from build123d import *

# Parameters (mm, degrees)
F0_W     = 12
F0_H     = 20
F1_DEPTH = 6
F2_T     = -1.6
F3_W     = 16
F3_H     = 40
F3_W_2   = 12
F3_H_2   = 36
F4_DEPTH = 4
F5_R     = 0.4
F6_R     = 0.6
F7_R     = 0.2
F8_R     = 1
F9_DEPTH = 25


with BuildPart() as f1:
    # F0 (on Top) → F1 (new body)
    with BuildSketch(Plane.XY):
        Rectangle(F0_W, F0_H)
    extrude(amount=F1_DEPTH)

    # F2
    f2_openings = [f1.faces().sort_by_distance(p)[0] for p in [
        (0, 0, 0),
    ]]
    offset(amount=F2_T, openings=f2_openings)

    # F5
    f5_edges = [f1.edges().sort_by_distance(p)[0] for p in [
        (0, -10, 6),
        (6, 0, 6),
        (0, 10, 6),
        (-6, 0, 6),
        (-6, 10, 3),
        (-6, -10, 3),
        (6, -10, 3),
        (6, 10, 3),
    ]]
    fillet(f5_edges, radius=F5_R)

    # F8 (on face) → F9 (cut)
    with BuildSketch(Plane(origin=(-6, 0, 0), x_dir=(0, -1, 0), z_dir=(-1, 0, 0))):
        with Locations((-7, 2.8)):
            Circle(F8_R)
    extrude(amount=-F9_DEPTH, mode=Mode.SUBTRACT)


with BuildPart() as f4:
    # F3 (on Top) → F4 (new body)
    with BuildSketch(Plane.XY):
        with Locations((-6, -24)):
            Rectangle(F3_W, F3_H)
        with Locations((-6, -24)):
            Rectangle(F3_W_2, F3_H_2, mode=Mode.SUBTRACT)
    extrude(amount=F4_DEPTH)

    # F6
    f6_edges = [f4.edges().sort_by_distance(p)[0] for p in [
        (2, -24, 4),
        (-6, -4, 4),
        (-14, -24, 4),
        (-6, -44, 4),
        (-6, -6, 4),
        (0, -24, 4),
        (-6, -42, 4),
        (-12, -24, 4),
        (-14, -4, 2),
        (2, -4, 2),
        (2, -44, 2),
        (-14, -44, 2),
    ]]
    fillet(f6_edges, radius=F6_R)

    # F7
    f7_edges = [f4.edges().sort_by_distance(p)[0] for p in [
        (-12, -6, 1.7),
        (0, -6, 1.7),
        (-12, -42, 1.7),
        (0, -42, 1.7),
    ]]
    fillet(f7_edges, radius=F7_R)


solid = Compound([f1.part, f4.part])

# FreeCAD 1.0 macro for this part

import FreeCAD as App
import Part
import Sketcher
Q = App.Units.Quantity


def edges_at(feature, points):
    """Names of the edges that pass closest to the given points."""
    edges = feature.Shape.Edges
    near = lambda p: min(range(len(edges)), key=lambda i: edges[i].distToShape(Part.Vertex(*p))[0])
    return sorted({f"Edge{near(p) + 1}" for p in points})


def faces_at(feature, points):
    """Names of the faces that lie closest to the given points."""
    faces = feature.Shape.Faces
    near = lambda p: min(range(len(faces)), key=lambda i: faces[i].distToShape(Part.Vertex(*p))[0])
    return sorted({f"Face{near(p) + 1}" for p in points})


def add_polygon(sketch, points):
    """Adds a closed chain of lines whose ends are joined by coincident constraints."""
    first, n = sketch.GeometryCount, len(points)
    for a, b in zip(points, points[1:] + points[:1]):
        sketch.addGeometry(Part.LineSegment(App.Vector(*a, 0), App.Vector(*b, 0)), False)
    for i in range(n):
        sketch.addConstraint(Sketcher.Constraint("Coincident", first + i, 2, first + (i + 1) % n, 1))

doc = App.newDocument("Part")
body = doc.addObject("PartDesign::Body", "Body")

# Sketch on XY plane
sketch1 = doc.addObject("Sketcher::SketchObject", "Sketch")
body.addObject(sketch1)
sketch1.AttachmentSupport = (doc.XY_Plane, [""])
sketch1.MapMode = "FlatFace"
add_polygon(sketch1, [(-6, 10), (-6, -10), (6, -10), (6, 10)])  # lines 0-3
sketch1.addConstraint([
    Sketcher.Constraint("Vertical", 0),
    Sketcher.Constraint("Horizontal", 1),
    Sketcher.Constraint("Vertical", 2),
    Sketcher.Constraint("Horizontal", 3),
    Sketcher.Constraint("Symmetric", 0, 2, 2, 2, -1, 1),
    Sketcher.Constraint("DistanceX", 1, 1, 1, 2, Q("12 mm")),
    Sketcher.Constraint("DistanceY", 0, 2, 0, 1, Q("20 mm")),
])
pad1 = doc.addObject("PartDesign::Pad", "Pad")
body.addObject(pad1)
pad1.Profile = sketch1
pad1.Length = 6
doc.recompute()

thickness = doc.addObject("PartDesign::Thickness", "Thickness")
body.addObject(thickness)
thickness.Base = (pad1, faces_at(pad1, [(0, 0, 0)]))
thickness.Value = 1.6
thickness.Reversed = True
thickness.Join = "Arc"
doc.recompute()

fillet = doc.addObject("PartDesign::Fillet", "Fillet")
body.addObject(fillet)
fillet.Base = (thickness, edges_at(thickness, [
    (0, -10, 6),
    (6, 0, 6),
    (0, 10, 6),
    (-6, 0, 6),
    (-6, 10, 3),
    (-6, -10, 3),
    (6, -10, 3),
    (6, 10, 3),
]))
fillet.Radius = 0.4

# Sketch on YZ plane
sketch2 = doc.addObject("Sketcher::SketchObject", "Sketch001")
body.addObject(sketch2)
sketch2.AttachmentSupport = (doc.YZ_Plane, [""])
sketch2.MapMode = "FlatFace"
sketch2.AttachmentOffset = App.Placement(App.Vector(0, 0, -6), App.Rotation())
sketch2.addGeometry(Part.Circle(App.Vector(7, 2.8, 0), App.Vector(0, 0, 1), 1), False)
sketch2.addConstraint([
    Sketcher.Constraint("Diameter", 0, Q("2 mm")),
    Sketcher.Constraint("DistanceX", -1, 1, 0, 3, Q("7 mm")),
    Sketcher.Constraint("DistanceY", -1, 1, 0, 3, Q("2.8 mm")),
])
pocket1 = doc.addObject("PartDesign::Pocket", "Pocket")
body.addObject(pocket1)
pocket1.Profile = sketch2
pocket1.Length = 25
pocket1.Reversed = True
body2 = doc.addObject("PartDesign::Body", "Body001")

# Sketch on XY plane
sketch3 = doc.addObject("Sketcher::SketchObject", "Sketch002")
body2.addObject(sketch3)
sketch3.AttachmentSupport = (doc.getObject("XY_Plane001"), [""])
sketch3.MapMode = "FlatFace"
add_polygon(sketch3, [(-14, -4), (-14, -44), (2, -44), (2, -4)])  # lines 0-3
add_polygon(sketch3, [(0, -42), (-12, -42), (-12, -6), (0, -6)])  # lines 4-7
sketch3.addConstraint([
    Sketcher.Constraint("Vertical", 0),
    Sketcher.Constraint("Horizontal", 1),
    Sketcher.Constraint("Vertical", 2),
    Sketcher.Constraint("Horizontal", 3),
    Sketcher.Constraint("Horizontal", 4),
    Sketcher.Constraint("Vertical", 5),
    Sketcher.Constraint("Horizontal", 6),
    Sketcher.Constraint("Vertical", 7),
    Sketcher.Constraint("PointOnObject", 6, 2, -2),
    Sketcher.Constraint("DistanceX", 1, 1, 1, 2, Q("16 mm")),
    Sketcher.Constraint("DistanceX", 4, 2, 4, 1, Q("12 mm")),
    Sketcher.Constraint("DistanceY", 0, 2, 0, 1, Q("40 mm")),
    Sketcher.Constraint("DistanceY", 5, 1, 5, 2, Q("36 mm")),
    Sketcher.Constraint("DistanceX", 0, 2, -1, 1, Q("14 mm")),
    Sketcher.Constraint("DistanceY", 0, 2, -1, 1, Q("44 mm")),
    Sketcher.Constraint("DistanceY", 4, 2, -1, 1, Q("42 mm")),
])
pad2 = doc.addObject("PartDesign::Pad", "Pad001")
body2.addObject(pad2)
pad2.Profile = sketch3
pad2.Length = 4
doc.recompute()

fillet2 = doc.addObject("PartDesign::Fillet", "Fillet001")
body2.addObject(fillet2)
fillet2.Base = (pad2, edges_at(pad2, [
    (2, -24, 4),
    (-6, -4, 4),
    (-14, -24, 4),
    (-6, -44, 4),
    (-6, -6, 4),
    (0, -24, 4),
    (-6, -42, 4),
    (-12, -24, 4),
    (-14, -4, 2),
    (2, -4, 2),
    (2, -44, 2),
    (-14, -44, 2),
]))
fillet2.Radius = 0.6
doc.recompute()

fillet3 = doc.addObject("PartDesign::Fillet", "Fillet002")
body2.addObject(fillet3)
fillet3.Base = (fillet2, edges_at(fillet2, [
    (-12, -6, 1.7),
    (0, -6, 1.7),
    (-12, -42, 1.7),
    (0, -42, 1.7),
]))
fillet3.Radius = 0.2

doc.recompute()
